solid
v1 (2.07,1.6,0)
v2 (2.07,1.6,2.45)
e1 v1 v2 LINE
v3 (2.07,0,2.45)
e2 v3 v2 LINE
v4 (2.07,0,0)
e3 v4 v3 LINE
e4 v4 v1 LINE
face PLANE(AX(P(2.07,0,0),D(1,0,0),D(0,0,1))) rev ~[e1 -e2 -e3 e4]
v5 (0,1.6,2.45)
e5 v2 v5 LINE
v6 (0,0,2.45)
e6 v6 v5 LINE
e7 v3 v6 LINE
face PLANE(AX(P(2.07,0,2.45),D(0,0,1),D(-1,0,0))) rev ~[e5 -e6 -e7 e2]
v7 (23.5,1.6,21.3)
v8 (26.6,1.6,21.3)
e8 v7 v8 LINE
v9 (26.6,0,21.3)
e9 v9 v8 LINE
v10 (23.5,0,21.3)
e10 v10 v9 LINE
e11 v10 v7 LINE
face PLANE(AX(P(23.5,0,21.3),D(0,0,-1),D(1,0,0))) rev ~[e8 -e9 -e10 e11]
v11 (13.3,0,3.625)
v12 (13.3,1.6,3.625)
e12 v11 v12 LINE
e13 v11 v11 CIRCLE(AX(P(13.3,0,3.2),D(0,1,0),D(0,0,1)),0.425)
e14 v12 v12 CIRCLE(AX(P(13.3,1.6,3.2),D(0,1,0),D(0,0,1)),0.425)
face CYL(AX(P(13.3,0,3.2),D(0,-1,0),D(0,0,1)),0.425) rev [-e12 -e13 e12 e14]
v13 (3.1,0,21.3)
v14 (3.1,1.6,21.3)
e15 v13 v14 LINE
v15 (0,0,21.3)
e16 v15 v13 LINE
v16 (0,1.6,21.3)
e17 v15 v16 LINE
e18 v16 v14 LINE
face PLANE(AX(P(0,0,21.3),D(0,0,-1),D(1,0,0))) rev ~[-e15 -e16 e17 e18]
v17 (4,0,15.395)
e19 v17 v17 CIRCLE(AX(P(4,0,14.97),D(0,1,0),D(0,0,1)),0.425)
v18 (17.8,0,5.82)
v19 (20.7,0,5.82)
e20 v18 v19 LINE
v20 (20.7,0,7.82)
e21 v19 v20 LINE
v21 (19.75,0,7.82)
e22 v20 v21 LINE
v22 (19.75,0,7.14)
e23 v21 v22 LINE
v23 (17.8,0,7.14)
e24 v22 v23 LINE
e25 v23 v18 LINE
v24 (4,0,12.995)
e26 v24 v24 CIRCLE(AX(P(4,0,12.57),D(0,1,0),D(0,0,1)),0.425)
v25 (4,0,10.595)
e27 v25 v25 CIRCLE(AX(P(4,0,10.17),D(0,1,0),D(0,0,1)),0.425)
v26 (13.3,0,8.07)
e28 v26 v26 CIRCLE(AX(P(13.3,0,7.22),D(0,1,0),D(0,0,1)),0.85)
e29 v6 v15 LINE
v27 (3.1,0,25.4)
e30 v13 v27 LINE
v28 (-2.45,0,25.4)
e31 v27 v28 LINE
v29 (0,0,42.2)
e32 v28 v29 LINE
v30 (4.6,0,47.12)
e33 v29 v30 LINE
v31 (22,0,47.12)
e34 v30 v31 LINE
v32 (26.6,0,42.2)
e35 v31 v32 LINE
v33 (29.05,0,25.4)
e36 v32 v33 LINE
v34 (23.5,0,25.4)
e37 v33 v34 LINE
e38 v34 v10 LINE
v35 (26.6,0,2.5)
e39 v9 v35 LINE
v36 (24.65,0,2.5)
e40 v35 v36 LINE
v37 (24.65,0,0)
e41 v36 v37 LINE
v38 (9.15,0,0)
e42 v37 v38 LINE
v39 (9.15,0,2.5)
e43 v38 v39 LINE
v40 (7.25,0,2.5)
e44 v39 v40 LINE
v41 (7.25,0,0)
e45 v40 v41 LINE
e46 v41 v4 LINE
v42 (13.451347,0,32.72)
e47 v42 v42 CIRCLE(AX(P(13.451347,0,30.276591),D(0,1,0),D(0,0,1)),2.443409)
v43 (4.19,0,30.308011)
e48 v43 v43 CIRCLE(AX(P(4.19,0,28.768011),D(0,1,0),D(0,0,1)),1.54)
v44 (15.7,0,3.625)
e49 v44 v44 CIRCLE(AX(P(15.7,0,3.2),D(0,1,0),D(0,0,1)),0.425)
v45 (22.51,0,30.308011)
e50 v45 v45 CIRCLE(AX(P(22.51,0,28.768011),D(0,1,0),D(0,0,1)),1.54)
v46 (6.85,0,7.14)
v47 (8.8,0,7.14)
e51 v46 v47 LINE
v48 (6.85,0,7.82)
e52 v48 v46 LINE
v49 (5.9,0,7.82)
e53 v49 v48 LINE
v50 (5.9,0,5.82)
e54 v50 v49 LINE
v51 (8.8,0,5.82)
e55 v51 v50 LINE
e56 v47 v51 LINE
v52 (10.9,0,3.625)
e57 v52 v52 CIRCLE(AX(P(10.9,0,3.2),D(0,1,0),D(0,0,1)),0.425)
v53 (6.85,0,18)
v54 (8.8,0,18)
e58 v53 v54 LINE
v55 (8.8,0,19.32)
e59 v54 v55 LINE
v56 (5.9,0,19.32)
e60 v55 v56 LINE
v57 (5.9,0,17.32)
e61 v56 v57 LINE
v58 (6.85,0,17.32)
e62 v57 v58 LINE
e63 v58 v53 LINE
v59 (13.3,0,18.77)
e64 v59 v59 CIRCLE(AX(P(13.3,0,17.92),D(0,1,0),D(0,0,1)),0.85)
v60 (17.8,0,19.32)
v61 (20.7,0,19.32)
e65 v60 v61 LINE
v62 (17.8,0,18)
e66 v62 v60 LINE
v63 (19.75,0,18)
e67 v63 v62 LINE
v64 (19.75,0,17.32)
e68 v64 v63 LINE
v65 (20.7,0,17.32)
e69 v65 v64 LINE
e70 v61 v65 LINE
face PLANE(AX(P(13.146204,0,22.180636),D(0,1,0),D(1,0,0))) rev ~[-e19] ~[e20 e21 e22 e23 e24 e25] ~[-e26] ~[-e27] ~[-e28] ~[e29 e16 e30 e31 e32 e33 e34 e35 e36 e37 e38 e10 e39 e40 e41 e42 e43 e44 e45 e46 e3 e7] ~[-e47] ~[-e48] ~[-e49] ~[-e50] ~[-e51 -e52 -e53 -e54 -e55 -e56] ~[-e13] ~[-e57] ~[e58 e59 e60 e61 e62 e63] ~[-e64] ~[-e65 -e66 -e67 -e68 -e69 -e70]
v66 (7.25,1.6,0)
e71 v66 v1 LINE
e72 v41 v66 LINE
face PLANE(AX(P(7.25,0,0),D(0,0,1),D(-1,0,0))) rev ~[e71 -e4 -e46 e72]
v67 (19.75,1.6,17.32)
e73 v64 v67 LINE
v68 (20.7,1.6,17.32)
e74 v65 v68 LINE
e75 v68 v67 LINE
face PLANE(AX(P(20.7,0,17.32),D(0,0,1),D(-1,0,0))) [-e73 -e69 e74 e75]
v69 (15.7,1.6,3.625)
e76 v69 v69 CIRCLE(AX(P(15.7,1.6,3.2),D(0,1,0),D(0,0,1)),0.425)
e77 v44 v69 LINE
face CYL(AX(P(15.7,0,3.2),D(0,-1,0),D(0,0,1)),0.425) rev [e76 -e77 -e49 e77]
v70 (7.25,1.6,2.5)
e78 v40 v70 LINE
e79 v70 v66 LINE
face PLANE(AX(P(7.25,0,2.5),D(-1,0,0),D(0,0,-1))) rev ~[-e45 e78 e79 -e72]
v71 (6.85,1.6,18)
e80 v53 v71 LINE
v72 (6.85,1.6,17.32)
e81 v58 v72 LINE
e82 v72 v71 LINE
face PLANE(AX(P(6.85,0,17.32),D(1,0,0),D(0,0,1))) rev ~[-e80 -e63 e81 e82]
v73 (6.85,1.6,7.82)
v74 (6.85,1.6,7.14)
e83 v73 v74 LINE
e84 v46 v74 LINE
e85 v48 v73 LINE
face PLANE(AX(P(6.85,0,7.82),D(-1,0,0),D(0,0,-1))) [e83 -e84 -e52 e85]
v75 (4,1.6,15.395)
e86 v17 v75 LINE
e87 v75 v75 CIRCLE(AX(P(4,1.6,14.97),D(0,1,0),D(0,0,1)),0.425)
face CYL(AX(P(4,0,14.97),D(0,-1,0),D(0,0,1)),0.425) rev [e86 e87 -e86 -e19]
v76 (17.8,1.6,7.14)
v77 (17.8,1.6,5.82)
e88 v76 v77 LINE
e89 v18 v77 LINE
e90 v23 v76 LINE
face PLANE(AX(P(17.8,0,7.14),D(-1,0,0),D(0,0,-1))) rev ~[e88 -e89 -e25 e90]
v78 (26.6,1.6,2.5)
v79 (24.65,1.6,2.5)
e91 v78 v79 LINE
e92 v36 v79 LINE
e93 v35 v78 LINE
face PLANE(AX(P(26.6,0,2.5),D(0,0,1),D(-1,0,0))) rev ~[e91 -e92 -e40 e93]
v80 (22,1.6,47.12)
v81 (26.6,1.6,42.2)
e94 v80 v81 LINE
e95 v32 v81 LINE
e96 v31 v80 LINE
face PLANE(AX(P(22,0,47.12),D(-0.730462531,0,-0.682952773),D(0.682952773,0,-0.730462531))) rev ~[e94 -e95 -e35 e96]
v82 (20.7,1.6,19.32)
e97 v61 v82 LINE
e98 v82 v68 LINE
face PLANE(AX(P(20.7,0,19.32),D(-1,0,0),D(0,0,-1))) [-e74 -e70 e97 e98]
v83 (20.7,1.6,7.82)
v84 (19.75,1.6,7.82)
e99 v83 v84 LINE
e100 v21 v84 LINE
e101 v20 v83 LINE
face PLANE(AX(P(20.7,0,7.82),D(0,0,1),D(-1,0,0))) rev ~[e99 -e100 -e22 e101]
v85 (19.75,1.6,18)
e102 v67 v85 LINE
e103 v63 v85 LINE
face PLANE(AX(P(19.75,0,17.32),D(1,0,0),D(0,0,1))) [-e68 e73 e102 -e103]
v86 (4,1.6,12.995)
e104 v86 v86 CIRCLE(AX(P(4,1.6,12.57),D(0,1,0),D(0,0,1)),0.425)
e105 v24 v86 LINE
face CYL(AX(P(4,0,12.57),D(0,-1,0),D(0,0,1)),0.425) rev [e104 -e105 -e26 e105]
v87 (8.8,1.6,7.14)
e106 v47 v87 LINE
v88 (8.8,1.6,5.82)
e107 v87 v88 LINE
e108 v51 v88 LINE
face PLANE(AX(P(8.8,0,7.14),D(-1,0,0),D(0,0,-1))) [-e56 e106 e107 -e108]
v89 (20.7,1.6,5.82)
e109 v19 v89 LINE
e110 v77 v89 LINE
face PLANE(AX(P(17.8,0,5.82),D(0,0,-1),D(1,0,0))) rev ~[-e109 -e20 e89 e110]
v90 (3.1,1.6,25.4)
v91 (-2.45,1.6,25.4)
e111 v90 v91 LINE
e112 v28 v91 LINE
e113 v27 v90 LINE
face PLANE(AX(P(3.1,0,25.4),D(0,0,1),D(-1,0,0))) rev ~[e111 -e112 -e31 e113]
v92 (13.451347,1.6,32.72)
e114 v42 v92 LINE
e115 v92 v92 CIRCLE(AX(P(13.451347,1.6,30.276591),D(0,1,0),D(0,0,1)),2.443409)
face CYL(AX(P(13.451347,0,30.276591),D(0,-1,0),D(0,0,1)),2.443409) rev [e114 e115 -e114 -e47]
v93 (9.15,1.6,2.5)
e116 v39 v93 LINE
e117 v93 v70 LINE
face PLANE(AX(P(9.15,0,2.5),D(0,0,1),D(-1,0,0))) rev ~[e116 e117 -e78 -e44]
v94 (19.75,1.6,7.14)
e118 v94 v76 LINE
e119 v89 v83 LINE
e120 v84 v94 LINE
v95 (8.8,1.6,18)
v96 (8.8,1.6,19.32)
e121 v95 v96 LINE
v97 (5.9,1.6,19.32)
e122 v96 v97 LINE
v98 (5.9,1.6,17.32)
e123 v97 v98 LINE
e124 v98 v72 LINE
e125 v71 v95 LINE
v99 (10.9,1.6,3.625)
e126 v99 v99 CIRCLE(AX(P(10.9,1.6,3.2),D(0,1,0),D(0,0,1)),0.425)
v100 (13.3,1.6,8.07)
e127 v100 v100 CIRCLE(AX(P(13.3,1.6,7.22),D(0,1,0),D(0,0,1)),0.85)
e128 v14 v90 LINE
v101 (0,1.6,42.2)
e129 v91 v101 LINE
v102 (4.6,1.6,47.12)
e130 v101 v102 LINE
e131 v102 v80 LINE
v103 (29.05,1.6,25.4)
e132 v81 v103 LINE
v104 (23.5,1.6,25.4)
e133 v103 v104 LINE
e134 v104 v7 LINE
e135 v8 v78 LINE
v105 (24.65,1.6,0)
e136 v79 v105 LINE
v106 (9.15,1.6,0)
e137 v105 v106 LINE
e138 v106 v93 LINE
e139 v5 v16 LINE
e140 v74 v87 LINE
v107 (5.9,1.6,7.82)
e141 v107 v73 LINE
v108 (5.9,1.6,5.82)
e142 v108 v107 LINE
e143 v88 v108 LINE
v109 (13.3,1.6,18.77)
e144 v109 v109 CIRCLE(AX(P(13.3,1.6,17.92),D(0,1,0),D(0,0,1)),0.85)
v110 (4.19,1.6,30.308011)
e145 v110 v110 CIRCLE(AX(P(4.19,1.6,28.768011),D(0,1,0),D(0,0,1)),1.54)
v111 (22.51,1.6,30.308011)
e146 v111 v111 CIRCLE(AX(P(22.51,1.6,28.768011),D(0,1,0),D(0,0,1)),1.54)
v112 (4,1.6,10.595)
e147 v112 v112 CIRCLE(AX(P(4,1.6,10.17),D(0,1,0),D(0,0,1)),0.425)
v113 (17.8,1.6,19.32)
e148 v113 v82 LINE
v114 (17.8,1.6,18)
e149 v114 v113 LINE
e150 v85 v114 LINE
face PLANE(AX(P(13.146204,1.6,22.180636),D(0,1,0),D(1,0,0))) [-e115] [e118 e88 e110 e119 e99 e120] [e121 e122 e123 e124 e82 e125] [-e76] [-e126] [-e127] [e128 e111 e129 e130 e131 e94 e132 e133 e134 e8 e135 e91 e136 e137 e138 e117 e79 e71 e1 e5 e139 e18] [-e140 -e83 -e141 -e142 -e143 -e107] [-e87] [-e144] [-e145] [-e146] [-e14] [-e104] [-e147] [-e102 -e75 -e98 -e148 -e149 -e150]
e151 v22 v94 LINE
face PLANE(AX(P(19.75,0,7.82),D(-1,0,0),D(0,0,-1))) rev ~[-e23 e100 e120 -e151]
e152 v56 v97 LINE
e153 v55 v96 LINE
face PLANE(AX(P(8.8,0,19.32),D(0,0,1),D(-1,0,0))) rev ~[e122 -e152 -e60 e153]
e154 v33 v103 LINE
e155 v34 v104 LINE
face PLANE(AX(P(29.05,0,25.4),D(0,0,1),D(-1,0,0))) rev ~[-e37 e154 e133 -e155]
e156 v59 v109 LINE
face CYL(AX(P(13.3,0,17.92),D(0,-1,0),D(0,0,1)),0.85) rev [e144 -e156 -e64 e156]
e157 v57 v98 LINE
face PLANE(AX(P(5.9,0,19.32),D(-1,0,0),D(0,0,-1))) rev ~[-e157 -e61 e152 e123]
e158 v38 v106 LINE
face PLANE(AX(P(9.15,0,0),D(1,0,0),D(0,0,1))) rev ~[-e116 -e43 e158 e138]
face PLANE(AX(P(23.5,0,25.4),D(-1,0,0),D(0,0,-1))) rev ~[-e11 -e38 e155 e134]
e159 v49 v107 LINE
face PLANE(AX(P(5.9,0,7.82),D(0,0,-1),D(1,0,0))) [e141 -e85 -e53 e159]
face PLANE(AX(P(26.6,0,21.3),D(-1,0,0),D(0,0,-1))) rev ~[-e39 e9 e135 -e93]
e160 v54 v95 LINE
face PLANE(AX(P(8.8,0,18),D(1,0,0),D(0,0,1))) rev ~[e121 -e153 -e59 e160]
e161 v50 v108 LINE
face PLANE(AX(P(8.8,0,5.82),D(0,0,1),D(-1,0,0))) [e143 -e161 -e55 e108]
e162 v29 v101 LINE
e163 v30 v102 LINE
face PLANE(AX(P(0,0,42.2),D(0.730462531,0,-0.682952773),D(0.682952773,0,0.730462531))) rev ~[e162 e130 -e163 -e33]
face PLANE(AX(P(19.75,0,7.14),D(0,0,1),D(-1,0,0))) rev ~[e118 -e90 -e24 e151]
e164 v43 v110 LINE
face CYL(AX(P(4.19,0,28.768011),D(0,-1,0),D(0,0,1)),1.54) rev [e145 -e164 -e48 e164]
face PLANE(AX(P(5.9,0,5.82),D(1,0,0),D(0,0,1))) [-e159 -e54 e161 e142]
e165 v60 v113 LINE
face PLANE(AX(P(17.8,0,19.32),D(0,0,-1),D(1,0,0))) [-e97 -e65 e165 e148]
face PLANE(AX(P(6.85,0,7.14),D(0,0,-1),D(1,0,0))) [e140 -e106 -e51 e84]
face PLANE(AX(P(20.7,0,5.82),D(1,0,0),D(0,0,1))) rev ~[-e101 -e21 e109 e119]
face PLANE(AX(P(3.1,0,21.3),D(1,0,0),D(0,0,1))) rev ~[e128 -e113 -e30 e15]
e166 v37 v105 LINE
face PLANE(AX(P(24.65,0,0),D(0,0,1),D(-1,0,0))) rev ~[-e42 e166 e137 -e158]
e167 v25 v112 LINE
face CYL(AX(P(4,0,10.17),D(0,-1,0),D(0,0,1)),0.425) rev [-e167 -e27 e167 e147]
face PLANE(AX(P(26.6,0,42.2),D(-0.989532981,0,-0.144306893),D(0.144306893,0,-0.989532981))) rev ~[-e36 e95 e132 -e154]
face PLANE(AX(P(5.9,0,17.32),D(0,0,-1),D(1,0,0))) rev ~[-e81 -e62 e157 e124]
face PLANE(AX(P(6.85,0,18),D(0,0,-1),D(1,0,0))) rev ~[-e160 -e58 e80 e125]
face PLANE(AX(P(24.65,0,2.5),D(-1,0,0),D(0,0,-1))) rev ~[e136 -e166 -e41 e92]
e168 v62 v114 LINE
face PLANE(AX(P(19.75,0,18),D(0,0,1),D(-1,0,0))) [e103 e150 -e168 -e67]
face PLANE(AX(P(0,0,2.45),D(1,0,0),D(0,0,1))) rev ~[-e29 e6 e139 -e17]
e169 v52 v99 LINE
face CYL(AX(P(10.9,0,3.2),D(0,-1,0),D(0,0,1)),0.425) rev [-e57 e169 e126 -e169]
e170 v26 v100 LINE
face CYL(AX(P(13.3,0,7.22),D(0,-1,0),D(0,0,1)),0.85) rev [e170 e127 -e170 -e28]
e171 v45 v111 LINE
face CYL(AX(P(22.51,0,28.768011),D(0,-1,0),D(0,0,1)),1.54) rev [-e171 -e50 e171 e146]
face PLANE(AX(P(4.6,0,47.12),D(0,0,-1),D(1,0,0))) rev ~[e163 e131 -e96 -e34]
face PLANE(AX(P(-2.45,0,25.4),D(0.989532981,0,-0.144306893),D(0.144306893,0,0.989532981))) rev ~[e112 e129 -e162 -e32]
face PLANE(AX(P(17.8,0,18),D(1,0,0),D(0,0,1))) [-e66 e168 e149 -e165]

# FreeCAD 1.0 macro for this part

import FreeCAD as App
import Part
import Sketcher
from FreeCAD import Vector


def add_polygon(sketch, points):
    """Adds a closed chain of lines whose ends are joined by coincident constraints."""
    first, n = sketch.GeometryCount, len(points)
    for a, b in zip(points, points[1:] + points[:1]):
        sketch.addGeometry(Part.LineSegment(App.Vector(*a, 0), App.Vector(*b, 0)), False)
    for i in range(n):
        sketch.addConstraint(Sketcher.Constraint("Coincident", first + i, 2, first + (i + 1) % n, 1))

doc = App.newDocument("Part")
body = doc.addObject("PartDesign::Body", "Body")

# Sketch on XZ plane
sketch1 = body.newObject("Sketcher::SketchObject", "Sketch")
sketch1.AttachmentSupport = (doc.getObject("XZ_Plane"), [""])
sketch1.MapMode = "FlatFace"
add_polygon(sketch1, [(2.07, 0), (2.07, 2.45), (0, 2.45), (0, 21.3), (3.1, 21.3), (3.1, 25.4), (-2.45, 25.4), (0, 42.2), (4.6, 47.12), (22, 47.12), (26.6, 42.2), (29.05, 25.4), (23.5, 25.4), (23.5, 21.3), (26.6, 21.3), (26.6, 2.5), (24.65, 2.5), (24.65, 0), (9.15, 0), (9.15, 2.5), (7.25, 2.5), (7.25, 0)])  # lines 0-21
sketch1.addGeometry(Part.Circle(Vector(4.19, 28.768011, 0), Vector(0, 0, 1), 1.54), False)  # 22
add_polygon(sketch1, [(8.8, 18), (8.8, 19.32), (5.9, 19.32), (5.9, 17.32), (6.85, 17.32), (6.85, 18)])  # lines 23-28
sketch1.addGeometry(Part.Circle(Vector(13.3, 17.92, 0), Vector(0, 0, 1), 0.85), False)  # 29
sketch1.addGeometry(Part.Circle(Vector(13.451347, 30.276591, 0), Vector(0, 0, 1), 2.443409), False)  # 30
sketch1.addGeometry(Part.Circle(Vector(22.51, 28.768011, 0), Vector(0, 0, 1), 1.54), False)  # 31
add_polygon(sketch1, [(20.7, 17.32), (20.7, 19.32), (17.8, 19.32), (17.8, 18), (19.75, 18), (19.75, 17.32)])  # lines 32-37
sketch1.addGeometry(Part.Circle(Vector(4, 14.97, 0), Vector(0, 0, 1), 0.425), False)  # 38
sketch1.addGeometry(Part.Circle(Vector(4, 12.57, 0), Vector(0, 0, 1), 0.425), False)  # 39
sketch1.addGeometry(Part.Circle(Vector(4, 10.17, 0), Vector(0, 0, 1), 0.425), False)  # 40
add_polygon(sketch1, [(5.9, 7.82), (5.9, 5.82), (8.8, 5.82), (8.8, 7.14), (6.85, 7.14), (6.85, 7.82)])  # lines 41-46
sketch1.addGeometry(Part.Circle(Vector(13.3, 7.22, 0), Vector(0, 0, 1), 0.85), False)  # 47
sketch1.addGeometry(Part.Circle(Vector(10.9, 3.2, 0), Vector(0, 0, 1), 0.425), False)  # 48
sketch1.addGeometry(Part.Circle(Vector(13.3, 3.2, 0), Vector(0, 0, 1), 0.425), False)  # 49
sketch1.addGeometry(Part.Circle(Vector(15.7, 3.2, 0), Vector(0, 0, 1), 0.425), False)  # 50
add_polygon(sketch1, [(17.8, 7.14), (17.8, 5.82), (20.7, 5.82), (20.7, 7.82), (19.75, 7.82), (19.75, 7.14)])  # lines 51-56
sketch1.addConstraint([
    Sketcher.Constraint("Vertical", 0),
    Sketcher.Constraint("Horizontal", 1),
    Sketcher.Constraint("Vertical", 2),
    Sketcher.Constraint("Horizontal", 3),
    Sketcher.Constraint("Vertical", 4),
    Sketcher.Constraint("Horizontal", 5),
    Sketcher.Constraint("Horizontal", 8),
    Sketcher.Constraint("Horizontal", 11),
    Sketcher.Constraint("Vertical", 12),
    Sketcher.Constraint("Horizontal", 13),
    Sketcher.Constraint("Vertical", 14),
    Sketcher.Constraint("Horizontal", 15),
    Sketcher.Constraint("Vertical", 16),
    Sketcher.Constraint("Horizontal", 17),
    Sketcher.Constraint("Vertical", 18),
    Sketcher.Constraint("Horizontal", 19),
    Sketcher.Constraint("Vertical", 20),
    Sketcher.Constraint("Horizontal", 21),
    Sketcher.Constraint("Vertical", 23),
    Sketcher.Constraint("Horizontal", 24),
    Sketcher.Constraint("Vertical", 25),
    Sketcher.Constraint("Horizontal", 26),
    Sketcher.Constraint("Vertical", 27),
    Sketcher.Constraint("Horizontal", 28),
    Sketcher.Constraint("Vertical", 32),
    Sketcher.Constraint("Horizontal", 33),
    Sketcher.Constraint("Vertical", 34),
    Sketcher.Constraint("Horizontal", 35),
    Sketcher.Constraint("Vertical", 36),
    Sketcher.Constraint("Horizontal", 37),
    Sketcher.Constraint("Vertical", 41),
    Sketcher.Constraint("Horizontal", 42),
    Sketcher.Constraint("Vertical", 43),
    Sketcher.Constraint("Horizontal", 44),
    Sketcher.Constraint("Vertical", 45),
    Sketcher.Constraint("Horizontal", 46),
    Sketcher.Constraint("Vertical", 51),
    Sketcher.Constraint("Horizontal", 52),
    Sketcher.Constraint("Vertical", 53),
    Sketcher.Constraint("Horizontal", 54),
    Sketcher.Constraint("Vertical", 55),
    Sketcher.Constraint("Horizontal", 56),
    Sketcher.Constraint("Equal", 22, 31),
    Sketcher.Constraint("Equal", 38, 39),
    Sketcher.Constraint("Equal", 39, 40),
    Sketcher.Constraint("Equal", 29, 47),
    Sketcher.Constraint("Equal", 40, 48),
    Sketcher.Constraint("Equal", 48, 49),
    Sketcher.Constraint("Equal", 49, 50),
    Sketcher.Constraint("PointOnObject", 1, 2, -2),
    Sketcher.Constraint("PointOnObject", 6, 2, -2),
    Sketcher.Constraint("PointOnObject", 16, 2, -1),
    Sketcher.Constraint("PointOnObject", 20, 2, -1),
    Sketcher.Constraint("Horizontal", 22, 3, 31, 3),
    Sketcher.Constraint("Horizontal", 48, 3, 49, 3),
    Sketcher.Constraint("Horizontal", 49, 3, 50, 3),
    Sketcher.Constraint("Horizontal", 6, 2, 9, 2),
    Sketcher.Constraint("Horizontal", 5, 2, 10, 2),
    Sketcher.Constraint("Horizontal", 3, 2, 12, 2),
    Sketcher.Constraint("Horizontal", 15, 2, 18, 2),
    Sketcher.Constraint("Horizontal", 24, 2, 32, 2),
    Sketcher.Constraint("Horizontal", 28, 2, 34, 2),
    Sketcher.Constraint("Horizontal", 26, 2, 36, 2),
    Sketcher.Constraint("Horizontal", 42, 2, 51, 2),
    Sketcher.Constraint("Horizontal", 46, 2, 53, 2),
    Sketcher.Constraint("Horizontal", 44, 2, 55, 2),
    Sketcher.Constraint("Vertical", 38, 3, 39, 3),
    Sketcher.Constraint("Vertical", 39, 3, 40, 3),
    Sketcher.Constraint("Vertical", 29, 3, 47, 3),
    Sketcher.Constraint("Vertical", 47, 3, 49, 3),
    Sketcher.Constraint("Vertical", 9, 2, 13, 2),
    Sketcher.Constraint("Vertical", 25, 2, 41, 2),
    Sketcher.Constraint("Vertical", 28, 2, 42, 2),
    Sketcher.Constraint("Vertical", 27, 2, 44, 2),
    Sketcher.Constraint("Vertical", 34, 2, 51, 2),
    Sketcher.Constraint("Vertical", 37, 2, 52, 2),
    Sketcher.Constraint("Vertical", 36, 2, 54, 2),
    Sketcher.Constraint("Equal", 5, 11),
    Sketcher.Constraint("Equal", 3, 13),
    Sketcher.Constraint("Equal", 15, 28),
    Sketcher.Constraint("Equal", 24, 33),
    Sketcher.Constraint("Equal", 28, 35),
    Sketcher.Constraint("Equal", 32, 41),
    Sketcher.Constraint("Equal", 34, 43),
    Sketcher.Constraint("Equal", 7, 9),
    Sketcher.Constraint("Diameter", 29, 1.7),
    Sketcher.Constraint("Diameter", 22, 3.08),
    Sketcher.Constraint("Diameter", 38, 0.85),
    Sketcher.Constraint("DistanceY", 25, 2, 25, 1, 2.0),
    Sketcher.Constraint("DistanceX", 3, 1, 3, 2, 3.1),
    Sketcher.Constraint("DistanceX", 8, 1, 8, 2, 17.4),
    Sketcher.Constraint("DistanceX", 17, 2, 17, 1, 15.5),
    Sketcher.Constraint("DistanceX", 19, 2, 19, 1, 1.9),
    Sketcher.Constraint("DistanceX", 24, 2, 24, 1, 2.9),
    Sketcher.Constraint("DistanceY", 4, 1, 4, 2, 4.1),
    Sketcher.Constraint("DistanceY", 14, 2, 14, 1, 18.8),
    Sketcher.Constraint("DistanceY", 16, 2, 16, 1, 2.5),
    Sketcher.Constraint("DistanceX", -1, 1, 38, 3, 4.0),
    Sketcher.Constraint("DistanceX", -1, 1, 8, 2, 22.0),
    Sketcher.Constraint("DistanceY", -1, 1, 27, 2, 18.0),
    Sketcher.Constraint("DistanceX", 23, 2, 33, 2, 9.0),
    Sketcher.Constraint("DistanceX", 41, 2, 48, 3, 5.0),
    Sketcher.Constraint("DistanceX", 50, 3, 52, 2, 5.0),
    Sketcher.Constraint("DistanceX", 1, 2, 1, 1, 2.07),
    Sketcher.Constraint("DistanceX", 5, 2, 5, 1, 5.55),
    Sketcher.Constraint("DistanceX", 15, 2, 15, 1, 1.95),
    Sketcher.Constraint("DistanceY", 0, 1, 0, 2, 2.45),
    Sketcher.Constraint("DistanceY", 23, 1, 23, 2, 1.32),
    Sketcher.Constraint("DistanceX", -1, 1, 29, 3, 13.3),
    Sketcher.Constraint("DistanceX", -1, 1, 48, 3, 10.9),
    Sketcher.Constraint("DistanceY", -1, 1, 48, 3, 3.2),
    Sketcher.Constraint("DistanceY", -1, 1, 6, 2, 42.2),
    Sketcher.Constraint("DistanceY", 39, 3, 38, 3, 2.4),
    Sketcher.Constraint("DistanceY", 40, 3, 39, 3, 2.4),
    Sketcher.Constraint("DistanceY", 47, 3, 29, 3, 10.7),
    Sketcher.Constraint("DistanceY", 29, 3, 23, 2, 1.4),
    Sketcher.Constraint("DistanceY", 42, 2, 47, 3, 1.4),
    Sketcher.Constraint("Diameter", 30, 4.886818),
    Sketcher.Constraint("DistanceX", -1, 1, 22, 3, 4.19),
    Sketcher.Constraint("DistanceX", -1, 1, 31, 3, 22.51),
    Sketcher.Constraint("DistanceY", -1, 1, 38, 3, 14.97),
    Sketcher.Constraint("DistanceY", -1, 1, 7, 2, 47.12),
    Sketcher.Constraint("DistanceY", -1, 1, 22, 3, 28.768011),
    Sketcher.Constraint("DistanceY", -1, 1, 30, 3, 30.276591),
    Sketcher.Constraint("DistanceX", -1, 1, 30, 3, 13.451347),
])
pad1 = body.newObject("PartDesign::Pad", "Pad")
pad1.Profile = sketch1
pad1.Length = 1.6
pad1.Reversed = True

doc.recompute()
